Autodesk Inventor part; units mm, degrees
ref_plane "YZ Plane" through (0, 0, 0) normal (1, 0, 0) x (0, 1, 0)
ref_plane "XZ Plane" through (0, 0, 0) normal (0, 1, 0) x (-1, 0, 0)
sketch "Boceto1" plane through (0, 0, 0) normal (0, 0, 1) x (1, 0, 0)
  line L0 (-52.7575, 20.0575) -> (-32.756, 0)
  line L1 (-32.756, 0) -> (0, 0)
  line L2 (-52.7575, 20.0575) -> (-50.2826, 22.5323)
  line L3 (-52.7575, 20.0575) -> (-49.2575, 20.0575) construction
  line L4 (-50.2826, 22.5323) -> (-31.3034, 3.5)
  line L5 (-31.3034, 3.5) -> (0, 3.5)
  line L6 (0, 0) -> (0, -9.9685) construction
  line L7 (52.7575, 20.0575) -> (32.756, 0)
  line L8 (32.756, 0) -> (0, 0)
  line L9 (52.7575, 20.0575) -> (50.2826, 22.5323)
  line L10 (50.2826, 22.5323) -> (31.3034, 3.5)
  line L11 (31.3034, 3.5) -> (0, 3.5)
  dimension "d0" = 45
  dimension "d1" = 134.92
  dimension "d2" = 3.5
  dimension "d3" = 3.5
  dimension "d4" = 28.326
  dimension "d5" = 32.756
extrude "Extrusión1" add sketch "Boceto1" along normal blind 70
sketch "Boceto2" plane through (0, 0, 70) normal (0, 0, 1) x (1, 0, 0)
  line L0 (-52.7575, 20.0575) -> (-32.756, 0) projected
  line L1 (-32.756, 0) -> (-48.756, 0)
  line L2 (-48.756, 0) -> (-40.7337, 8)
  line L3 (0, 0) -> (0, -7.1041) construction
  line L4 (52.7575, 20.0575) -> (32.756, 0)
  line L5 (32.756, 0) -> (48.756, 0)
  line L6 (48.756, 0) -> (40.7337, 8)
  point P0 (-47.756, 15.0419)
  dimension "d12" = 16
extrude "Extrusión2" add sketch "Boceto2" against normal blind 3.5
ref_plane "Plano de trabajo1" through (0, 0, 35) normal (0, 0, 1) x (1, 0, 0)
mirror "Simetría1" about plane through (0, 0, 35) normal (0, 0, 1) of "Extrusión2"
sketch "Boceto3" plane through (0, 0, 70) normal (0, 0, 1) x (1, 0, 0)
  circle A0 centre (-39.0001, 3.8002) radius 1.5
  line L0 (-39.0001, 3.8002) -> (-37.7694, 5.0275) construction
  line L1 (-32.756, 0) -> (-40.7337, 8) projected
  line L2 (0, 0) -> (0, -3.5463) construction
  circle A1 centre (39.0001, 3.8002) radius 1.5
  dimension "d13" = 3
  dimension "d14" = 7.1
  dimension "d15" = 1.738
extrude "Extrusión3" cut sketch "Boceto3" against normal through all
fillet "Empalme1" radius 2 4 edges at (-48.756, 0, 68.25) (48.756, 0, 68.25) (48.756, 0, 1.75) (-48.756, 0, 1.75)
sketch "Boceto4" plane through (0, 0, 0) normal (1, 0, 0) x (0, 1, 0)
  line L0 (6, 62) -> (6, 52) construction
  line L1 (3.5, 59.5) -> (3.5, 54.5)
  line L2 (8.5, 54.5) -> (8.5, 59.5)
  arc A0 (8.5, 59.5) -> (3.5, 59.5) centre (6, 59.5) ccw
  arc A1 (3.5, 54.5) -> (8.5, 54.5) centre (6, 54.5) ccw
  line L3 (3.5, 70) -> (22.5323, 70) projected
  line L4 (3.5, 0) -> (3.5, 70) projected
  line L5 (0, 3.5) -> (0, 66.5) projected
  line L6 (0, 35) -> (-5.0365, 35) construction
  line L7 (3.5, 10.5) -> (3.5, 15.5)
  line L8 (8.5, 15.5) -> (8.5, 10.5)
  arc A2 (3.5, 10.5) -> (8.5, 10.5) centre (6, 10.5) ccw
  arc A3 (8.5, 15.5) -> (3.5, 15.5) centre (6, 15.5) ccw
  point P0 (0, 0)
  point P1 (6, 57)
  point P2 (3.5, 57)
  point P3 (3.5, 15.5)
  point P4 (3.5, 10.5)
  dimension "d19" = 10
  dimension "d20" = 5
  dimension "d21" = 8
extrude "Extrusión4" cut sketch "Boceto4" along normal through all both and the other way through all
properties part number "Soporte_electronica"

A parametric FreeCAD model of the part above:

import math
import FreeCAD as App
import Part
import Sketcher
Q = App.Units.Quantity


def edges_at(feature, points):
    """Names of the edges that pass closest to the given points."""
    edges = feature.Shape.Edges
    near = lambda p: min(range(len(edges)), key=lambda i: edges[i].distToShape(Part.Vertex(*p))[0])
    return sorted({f"Edge{near(p) + 1}" for p in points})

doc = App.newDocument("Part")
body = doc.addObject("PartDesign::Body", "Body")

# Sketch on XY plane
sketch1 = body.newObject("Sketcher::SketchObject", "Sketch")
sketch1.AttachmentSupport = (doc.getObject("XY_Plane"), [""])
sketch1.MapMode = "FlatFace"
sketch1.addGeometry([
    Part.LineSegment(App.Vector(-50.3, 22.5, 0), App.Vector(-52.8, 20.1, 0)),  # 0
    Part.LineSegment(App.Vector(-52.8, 20.1, 0), App.Vector(-32.8, 0, 0)),  # 1
    Part.LineSegment(App.Vector(-32.8, 0, 0), App.Vector(32.8, 0, 0)),  # 2
    Part.LineSegment(App.Vector(32.8, 0, 0), App.Vector(52.8, 20.1, 0)),  # 3
    Part.LineSegment(App.Vector(52.8, 20.1, 0), App.Vector(50.3, 22.5, 0)),  # 4
    Part.LineSegment(App.Vector(50.3, 22.5, 0), App.Vector(31.3, 3.5, 0)),  # 5
    Part.LineSegment(App.Vector(31.3, 3.5, 0), App.Vector(-31.3, 3.5, 0)),  # 6
    Part.LineSegment(App.Vector(-31.3, 3.5, 0), App.Vector(-50.3, 22.5, 0)),  # 7
], False)
sketch1.addConstraint([
    Sketcher.Constraint("Coincident", 0, 2, 1, 1),
    Sketcher.Constraint("Coincident", 1, 2, 2, 1),
    Sketcher.Constraint("Coincident", 2, 2, 3, 1),
    Sketcher.Constraint("Coincident", 3, 2, 4, 1),
    Sketcher.Constraint("Coincident", 4, 2, 5, 1),
    Sketcher.Constraint("Coincident", 5, 2, 6, 1),
    Sketcher.Constraint("Coincident", 6, 2, 7, 1),
    Sketcher.Constraint("Coincident", 7, 2, 0, 1),
    Sketcher.Constraint("Horizontal", 2),
    Sketcher.Constraint("Horizontal", 6),
    Sketcher.Constraint("Symmetric", 1, 2, 2, 2, -1, 1),
    Sketcher.Constraint("Symmetric", 0, 2, 3, 2, -2),
    Sketcher.Constraint("Symmetric", 4, 2, 7, 2, -2),
    Sketcher.Constraint("Perpendicular", 0, 4),
    Sketcher.Constraint("Parallel", 3, 5),
    Sketcher.Constraint("Parallel", 1, 7),
    Sketcher.Constraint("Distance", 0, 3.5),
    Sketcher.Constraint("DistanceY", -1, 1, 5, 2, 3.5),
    Sketcher.Constraint("Angle", 5, Q("-134.92 deg")),
    Sketcher.Constraint("Distance", 1, 28.326),
    Sketcher.Constraint("DistanceX", 1, 2, -1, 1, 32.756),
])
pad1 = body.newObject("PartDesign::Pad", "Pad")
pad1.Profile = sketch1
pad1.Length = 70

# Sketch on XY plane
sketch2 = body.newObject("Sketcher::SketchObject", "Sketch001")
sketch2.AttachmentSupport = (doc.getObject("XY_Plane"), [""])
sketch2.MapMode = "FlatFace"
sketch2.AttachmentOffset = App.Placement(App.Vector(0, 0, 70), App.Rotation())
sketch2.addGeometry([
    Part.LineSegment(App.Vector(-33, 0, 0), App.Vector(-41, 8, 0)),  # 0
    Part.LineSegment(App.Vector(-41, 8, 0), App.Vector(-49, 0, 0)),  # 1
    Part.LineSegment(App.Vector(-49, 0, 0), App.Vector(-33, 0, 0)),  # 2
    Part.LineSegment(App.Vector(49, 0, 0), App.Vector(41, 8, 0)),  # 3
    Part.LineSegment(App.Vector(41, 8, 0), App.Vector(33, 0, 0)),  # 4
    Part.LineSegment(App.Vector(33, 0, 0), App.Vector(49, 0, 0)),  # 5
], False)
sketch2.addConstraint([
    Sketcher.Constraint("Coincident", 0, 2, 1, 1),
    Sketcher.Constraint("Coincident", 1, 2, 2, 1),
    Sketcher.Constraint("Coincident", 2, 2, 0, 1),
    Sketcher.Constraint("Coincident", 3, 2, 4, 1),
    Sketcher.Constraint("Coincident", 4, 2, 5, 1),
    Sketcher.Constraint("Coincident", 5, 2, 3, 1),
    Sketcher.Constraint("Horizontal", 2),
    Sketcher.Constraint("Horizontal", 5),
    Sketcher.Constraint("Symmetric", 2, 2, 4, 2, -1, 1),
    Sketcher.Constraint("Symmetric", 0, 2, 3, 2, -2),
    Sketcher.Constraint("Symmetric", 1, 2, 5, 2, -2),
    Sketcher.Constraint("Perpendicular", 0, 1),
    Sketcher.Constraint("DistanceX", 2, 1, 2, 2, 16.0),
    Sketcher.Constraint("Angle", 0, Q("134.92 deg")),
    Sketcher.Constraint("DistanceX", 1, 2, -1, 1, 48.756),
])
pad2 = body.newObject("PartDesign::Pad", "Pad001")
pad2.Profile = sketch2
pad2.Length = 3.5
pad2.Reversed = True
doc.recompute()

datumplane = body.newObject("PartDesign::Plane", "DatumPlane")
datumplane.AttachmentSupport = (doc.getObject("XY_Plane"), [""])
datumplane.MapMode = "FlatFace"
datumplane.AttachmentOffset = App.Placement(App.Vector(0, 0, 35), App.Rotation())
mirrored = body.newObject("PartDesign::Mirrored", "Mirrored")
mirrored.Originals = [pad2]
mirrored.MirrorPlane = (datumplane, [""])
body.Tip = mirrored

# Sketch on XY plane
sketch3 = body.newObject("Sketcher::SketchObject", "Sketch002")
sketch3.AttachmentSupport = (doc.getObject("XY_Plane"), [""])
sketch3.MapMode = "FlatFace"
sketch3.AttachmentOffset = App.Placement(App.Vector(0, 0, 70), App.Rotation())
sketch3.addGeometry([
    Part.Circle(App.Vector(-39, 3.8, 0), App.Vector(0, 0, 1), 1.5),
    Part.Circle(App.Vector(39, 3.8, 0), App.Vector(0, 0, 1), 1.5),
], False)
sketch3.addConstraint([
    Sketcher.Constraint("Equal", 0, 1),
    Sketcher.Constraint("Symmetric", 0, 3, 1, 3, -2),
    Sketcher.Constraint("Diameter", 0, 3.0),
    Sketcher.Constraint("DistanceX", 0, 3, -1, 1, 39.0),
    Sketcher.Constraint("DistanceY", -1, 1, 0, 3, 3.8002),
])
pocket1 = body.newObject("PartDesign::Pocket", "Pocket")
pocket1.Profile = sketch3
pocket1.Type = "ThroughAll"
doc.recompute()

fillet = body.newObject("PartDesign::Fillet", "Fillet")
fillet.Base = (pocket1, edges_at(pocket1, [
    (-48.756, 0, 68.25),
    (48.756, 0, 68.25),
    (48.756, 0, 1.75),
    (-48.756, 0, 1.75),
]))
fillet.Radius = 2

# Sketch on YZ plane
sketch4 = body.newObject("Sketcher::SketchObject", "Sketch003")
sketch4.AttachmentSupport = (doc.getObject("YZ_Plane"), [""])
sketch4.MapMode = "FlatFace"
sketch4.addGeometry([
    Part.ArcOfCircle(Part.Circle(App.Vector(6, 59.5, 0), App.Vector(0, 0, 1), 2.5), math.radians(0), math.radians(180)),  # 0
    Part.LineSegment(App.Vector(3.5, 59.5, 0), App.Vector(3.5, 54.5, 0)),  # 1
    Part.ArcOfCircle(Part.Circle(App.Vector(6, 54.5, 0), App.Vector(0, 0, 1), 2.5), math.radians(180), math.radians(360)),  # 2
    Part.LineSegment(App.Vector(8.5, 54.5, 0), App.Vector(8.5, 59.5, 0)),  # 3
    Part.ArcOfCircle(Part.Circle(App.Vector(6, 15.5, 0), App.Vector(0, 0, 1), 2.5), math.radians(0), math.radians(180)),  # 4
    Part.LineSegment(App.Vector(3.5, 15.5, 0), App.Vector(3.5, 10.5, 0)),  # 5
    Part.ArcOfCircle(Part.Circle(App.Vector(6, 10.5, 0), App.Vector(0, 0, 1), 2.5), math.radians(180), math.radians(360)),  # 6
    Part.LineSegment(App.Vector(8.5, 10.5, 0), App.Vector(8.5, 15.5, 0)),  # 7
], False)
sketch4.addConstraint([
    Sketcher.Constraint("Tangent", 0, 2, 1, 1),
    Sketcher.Constraint("Tangent", 1, 2, 2, 1),
    Sketcher.Constraint("Tangent", 2, 2, 3, 1),
    Sketcher.Constraint("Tangent", 3, 2, 0, 1),
    Sketcher.Constraint("Tangent", 4, 2, 5, 1),
    Sketcher.Constraint("Tangent", 5, 2, 6, 1),
    Sketcher.Constraint("Tangent", 6, 2, 7, 1),
    Sketcher.Constraint("Tangent", 7, 2, 4, 1),
    Sketcher.Constraint("Vertical", 1),
    Sketcher.Constraint("Vertical", 3),
    Sketcher.Constraint("Vertical", 5),
    Sketcher.Constraint("Vertical", 7),
    Sketcher.Constraint("Equal", 2, 4),
    Sketcher.Constraint("Vertical", 2, 3, 4, 3),
    Sketcher.Constraint("Equal", 3, 5),
    Sketcher.Constraint("Radius", 0, 2.5),
    Sketcher.Constraint("DistanceY", 1, 2, 1, 1, 5.0),
    Sketcher.Constraint("DistanceX", -1, 1, 0, 3, 6.0),
    Sketcher.Constraint("DistanceY", 4, 3, 2, 3, 39.0),
    Sketcher.Constraint("DistanceY", -1, 1, 0, 3, 59.5),
])
pocket2 = body.newObject("PartDesign::Pocket", "Pocket001")
pocket2.Profile = sketch4
pocket2.Type = "ThroughAll"
pocket2.Midplane = True

doc.recompute()
